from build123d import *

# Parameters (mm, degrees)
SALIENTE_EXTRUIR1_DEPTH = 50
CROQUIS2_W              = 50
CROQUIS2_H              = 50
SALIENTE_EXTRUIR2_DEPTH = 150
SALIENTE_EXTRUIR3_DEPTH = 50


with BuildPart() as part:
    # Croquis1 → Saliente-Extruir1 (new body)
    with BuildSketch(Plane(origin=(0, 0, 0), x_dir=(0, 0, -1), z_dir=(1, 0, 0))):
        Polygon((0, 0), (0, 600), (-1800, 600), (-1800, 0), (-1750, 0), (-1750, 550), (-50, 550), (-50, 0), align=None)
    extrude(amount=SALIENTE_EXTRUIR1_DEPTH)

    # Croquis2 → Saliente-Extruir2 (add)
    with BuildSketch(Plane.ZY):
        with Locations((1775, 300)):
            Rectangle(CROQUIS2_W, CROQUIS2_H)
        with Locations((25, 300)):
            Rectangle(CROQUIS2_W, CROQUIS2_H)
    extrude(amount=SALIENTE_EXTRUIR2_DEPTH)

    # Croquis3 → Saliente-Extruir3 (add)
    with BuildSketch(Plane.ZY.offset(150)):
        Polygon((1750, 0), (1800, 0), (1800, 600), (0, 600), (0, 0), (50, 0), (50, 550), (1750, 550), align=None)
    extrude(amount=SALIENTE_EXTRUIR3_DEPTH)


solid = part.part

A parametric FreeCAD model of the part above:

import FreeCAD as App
import Part
import Sketcher


def add_polygon(sketch, points):
    """Adds a closed chain of lines whose ends are joined by coincident constraints."""
    first, n = sketch.GeometryCount, len(points)
    for a, b in zip(points, points[1:] + points[:1]):
        sketch.addGeometry(Part.LineSegment(App.Vector(*a, 0), App.Vector(*b, 0)), False)
    for i in range(n):
        sketch.addConstraint(Sketcher.Constraint("Coincident", first + i, 2, first + (i + 1) % n, 1))

doc = App.newDocument("Part")
body = doc.addObject("PartDesign::Body", "Body")

sketch1 = doc.addObject("Sketcher::SketchObject", "Sketch")
body.addObject(sketch1)
sketch1.AttachmentSupport = (doc.YZ_Plane, [""])
sketch1.MapMode = "FlatFace"
add_polygon(sketch1, [(0, 0), (600, 0), (600, 1800), (0, 1800), (0, 1750), (550, 1750), (550, 50), (0, 50)])
sketch1.addConstraint([
    Sketcher.Constraint("Horizontal", 0),
    Sketcher.Constraint("Vertical", 1),
    Sketcher.Constraint("Horizontal", 2),
    Sketcher.Constraint("Vertical", 3),
    Sketcher.Constraint("Horizontal", 4),
    Sketcher.Constraint("Vertical", 5),
    Sketcher.Constraint("Horizontal", 6),
    Sketcher.Constraint("Vertical", 7),
    Sketcher.Constraint("Coincident", 7, 2, -1, 1),
    Sketcher.Constraint("PointOnObject", 2, 2, -2),
    Sketcher.Constraint("Equal", 3, 7),
    Sketcher.Constraint("DistanceX", 0, 1, 0, 2, 600.0),
    Sketcher.Constraint("DistanceX", 4, 1, 4, 2, 550.0),
    Sketcher.Constraint("DistanceY", 1, 1, 1, 2, 1800.0),
    Sketcher.Constraint("DistanceY", 3, 2, 3, 1, 50.0),
])
pad1 = doc.addObject("PartDesign::Pad", "Pad")
body.addObject(pad1)
pad1.Profile = sketch1
pad1.Length = 50

sketch2 = doc.addObject("Sketcher::SketchObject", "Sketch001")
body.addObject(sketch2)
sketch2.AttachmentSupport = (doc.YZ_Plane, [""])
sketch2.MapMode = "FlatFace"
add_polygon(sketch2, [(325, 1750), (275, 1750), (275, 1800), (325, 1800)])
add_polygon(sketch2, [(325, 0), (275, 0), (275, 50), (325, 50)])
sketch2.addConstraint([
    Sketcher.Constraint("Horizontal", 0),
    Sketcher.Constraint("Vertical", 1),
    Sketcher.Constraint("Horizontal", 2),
    Sketcher.Constraint("Vertical", 3),
    Sketcher.Constraint("Horizontal", 4),
    Sketcher.Constraint("Vertical", 5),
    Sketcher.Constraint("Horizontal", 6),
    Sketcher.Constraint("Vertical", 7),
    Sketcher.Constraint("PointOnObject", 4, 2, -1),
    Sketcher.Constraint("Vertical", 1, 2, 4, 2),
    Sketcher.Constraint("Vertical", 3, 2, 6, 2),
    Sketcher.Constraint("Equal", 6, 1),
    Sketcher.Constraint("Equal", 3, 5),
    Sketcher.Constraint("DistanceX", 0, 2, 0, 1, 50.0),
    Sketcher.Constraint("DistanceX", -1, 1, 0, 2, 275.0),
    Sketcher.Constraint("DistanceY", -1, 1, 0, 2, 1750.0),
])
pad2 = doc.addObject("PartDesign::Pad", "Pad001")
body.addObject(pad2)
pad2.Profile = sketch2
pad2.Length = 150
pad2.Reversed = True

sketch3 = doc.addObject("Sketcher::SketchObject", "Sketch002")
body.addObject(sketch3)
sketch3.AttachmentSupport = (doc.YZ_Plane, [""])
sketch3.MapMode = "FlatFace"
sketch3.AttachmentOffset = App.Placement(App.Vector(0, 0, -150), App.Rotation())
add_polygon(sketch3, [(0, 1750), (0, 1800), (600, 1800), (600, 0), (0, 0), (0, 50), (550, 50), (550, 1750)])
sketch3.addConstraint([
    Sketcher.Constraint("Vertical", 0),
    Sketcher.Constraint("Horizontal", 1),
    Sketcher.Constraint("Vertical", 2),
    Sketcher.Constraint("Horizontal", 3),
    Sketcher.Constraint("Vertical", 4),
    Sketcher.Constraint("Horizontal", 5),
    Sketcher.Constraint("Vertical", 6),
    Sketcher.Constraint("Horizontal", 7),
    Sketcher.Constraint("Coincident", 3, 2, -1, 1),
    Sketcher.Constraint("PointOnObject", 0, 2, -2),
    Sketcher.Constraint("Equal", 0, 4),
    Sketcher.Constraint("DistanceX", 1, 1, 1, 2, 600.0),
    Sketcher.Constraint("DistanceX", 5, 1, 5, 2, 550.0),
    Sketcher.Constraint("DistanceY", 0, 1, 0, 2, 50.0),
    Sketcher.Constraint("DistanceY", 2, 2, 2, 1, 1800.0),
])
pad3 = doc.addObject("PartDesign::Pad", "Pad002")
body.addObject(pad3)
pad3.Profile = sketch3
pad3.Length = 50
pad3.Reversed = True

doc.recompute()
